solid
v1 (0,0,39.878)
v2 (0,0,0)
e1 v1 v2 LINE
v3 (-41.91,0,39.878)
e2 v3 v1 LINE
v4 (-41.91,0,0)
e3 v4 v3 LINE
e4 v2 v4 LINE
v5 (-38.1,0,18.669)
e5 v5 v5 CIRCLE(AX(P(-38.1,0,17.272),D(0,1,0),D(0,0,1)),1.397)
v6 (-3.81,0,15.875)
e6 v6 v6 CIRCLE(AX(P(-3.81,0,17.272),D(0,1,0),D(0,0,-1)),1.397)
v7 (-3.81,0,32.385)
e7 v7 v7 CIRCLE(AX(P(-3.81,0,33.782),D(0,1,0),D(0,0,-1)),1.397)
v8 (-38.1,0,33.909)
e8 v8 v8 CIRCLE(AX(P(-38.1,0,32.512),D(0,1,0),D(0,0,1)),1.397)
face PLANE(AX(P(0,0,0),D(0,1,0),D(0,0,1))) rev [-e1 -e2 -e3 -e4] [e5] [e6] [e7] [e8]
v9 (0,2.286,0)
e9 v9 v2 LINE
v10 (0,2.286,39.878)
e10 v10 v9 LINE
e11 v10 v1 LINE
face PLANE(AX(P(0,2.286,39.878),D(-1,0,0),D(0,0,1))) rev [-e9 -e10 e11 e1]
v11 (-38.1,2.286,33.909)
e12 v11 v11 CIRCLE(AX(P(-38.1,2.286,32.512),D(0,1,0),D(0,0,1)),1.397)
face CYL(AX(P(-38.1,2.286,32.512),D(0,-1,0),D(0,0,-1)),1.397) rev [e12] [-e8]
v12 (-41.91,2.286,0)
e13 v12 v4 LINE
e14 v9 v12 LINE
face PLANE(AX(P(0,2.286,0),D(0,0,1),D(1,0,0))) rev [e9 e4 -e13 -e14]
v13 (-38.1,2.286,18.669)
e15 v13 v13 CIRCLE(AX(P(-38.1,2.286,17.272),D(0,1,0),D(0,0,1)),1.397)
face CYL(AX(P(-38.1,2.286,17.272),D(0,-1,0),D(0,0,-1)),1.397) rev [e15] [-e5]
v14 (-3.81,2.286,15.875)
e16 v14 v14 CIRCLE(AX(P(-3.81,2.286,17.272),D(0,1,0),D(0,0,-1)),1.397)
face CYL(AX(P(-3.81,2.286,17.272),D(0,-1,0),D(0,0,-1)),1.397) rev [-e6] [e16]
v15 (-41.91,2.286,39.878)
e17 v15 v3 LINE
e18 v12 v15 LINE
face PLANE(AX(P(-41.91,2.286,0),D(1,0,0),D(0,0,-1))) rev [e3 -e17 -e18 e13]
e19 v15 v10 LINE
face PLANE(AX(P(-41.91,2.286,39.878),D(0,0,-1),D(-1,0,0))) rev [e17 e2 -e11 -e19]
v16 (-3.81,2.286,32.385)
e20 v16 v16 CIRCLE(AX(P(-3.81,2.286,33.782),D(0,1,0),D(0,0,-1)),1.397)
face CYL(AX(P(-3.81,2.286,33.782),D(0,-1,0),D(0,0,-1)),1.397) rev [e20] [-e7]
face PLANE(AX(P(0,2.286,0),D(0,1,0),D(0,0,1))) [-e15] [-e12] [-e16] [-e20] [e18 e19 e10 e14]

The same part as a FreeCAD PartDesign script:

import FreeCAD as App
import Part
import Sketcher

V = App.Vector
Q = App.Units.Quantity

doc = App.newDocument("Part")
body = doc.addObject("PartDesign::Body", "Body")

# Sketch on XZ plane
sketch1 = body.newObject("Sketcher::SketchObject", "Sketch")
sketch1.AttachmentSupport = (doc.getObject("XZ_Plane"), [""])
sketch1.MapMode = "FlatFace"
sketch1.addGeometry(Part.LineSegment(V(-41.9, 0, 0), V(-41.9, 39.9, 0)), False)
sketch1.addGeometry(Part.LineSegment(V(-41.9, 39.9, 0), V(0, 39.9, 0)), False)
sketch1.addGeometry(Part.LineSegment(V(0, 39.9, 0), V(0, 0, 0)), False)
sketch1.addGeometry(Part.LineSegment(V(0, 0, 0), V(-41.9, 0, 0)), False)
sketch1.addGeometry(Part.Circle(V(-38.1, 32.5, 0), V(0, 0, 1), 1.4), False)
sketch1.addGeometry(Part.Circle(V(-3.8, 33.8, 0), V(0, 0, 1), 1.4), False)
sketch1.addGeometry(Part.Circle(V(-38.1, 17.3, 0), V(0, 0, 1), 1.4), False)
sketch1.addGeometry(Part.Circle(V(-3.8, 17.3, 0), V(0, 0, 1), 1.4), False)
sketch1.addConstraint(Sketcher.Constraint("Coincident", 0, 2, 1, 1))
sketch1.addConstraint(Sketcher.Constraint("Coincident", 1, 2, 2, 1))
sketch1.addConstraint(Sketcher.Constraint("Coincident", 2, 2, 3, 1))
sketch1.addConstraint(Sketcher.Constraint("Coincident", 3, 2, 0, 1))
sketch1.addConstraint(Sketcher.Constraint("Vertical", 0))
sketch1.addConstraint(Sketcher.Constraint("Horizontal", 1))
sketch1.addConstraint(Sketcher.Constraint("Vertical", 2))
sketch1.addConstraint(Sketcher.Constraint("Horizontal", 3))
sketch1.addConstraint(Sketcher.Constraint("Coincident", 2, 2, -1, 1))
sketch1.addConstraint(Sketcher.Constraint("Equal", 4, 5))
sketch1.addConstraint(Sketcher.Constraint("Equal", 5, 6))
sketch1.addConstraint(Sketcher.Constraint("Equal", 6, 7))
sketch1.addConstraint(Sketcher.Constraint("Horizontal", 6, 3, 7, 3))
sketch1.addConstraint(Sketcher.Constraint("Vertical", 4, 3, 6, 3))
sketch1.addConstraint(Sketcher.Constraint("Vertical", 5, 3, 7, 3))
sketch1.addConstraint(Sketcher.Constraint("Diameter", 4, Q("0.11 in")))
sketch1.addConstraint(Sketcher.Constraint("DistanceX", 1, 1, 1, 2, Q("1.65 in")))
sketch1.addConstraint(Sketcher.Constraint("DistanceY", 0, 1, 0, 2, Q("1.57 in")))
sketch1.addConstraint(Sketcher.Constraint("DistanceX", 4, 3, -1, 1, Q("1.5 in")))
sketch1.addConstraint(Sketcher.Constraint("DistanceY", 6, 3, 4, 3, Q("0.6 in")))
sketch1.addConstraint(Sketcher.Constraint("DistanceX", 0, 2, 5, 3, Q("1.5 in")))
sketch1.addConstraint(Sketcher.Constraint("DistanceY", -1, 1, 4, 3, Q("1.28 in")))
sketch1.addConstraint(Sketcher.Constraint("DistanceY", -1, 1, 5, 3, Q("1.33 in")))
pad1 = body.newObject("PartDesign::Pad", "Pad")
pad1.Profile = sketch1
pad1.Length = Q("0.09 in")
pad1.Reversed = True

doc.recompute()
